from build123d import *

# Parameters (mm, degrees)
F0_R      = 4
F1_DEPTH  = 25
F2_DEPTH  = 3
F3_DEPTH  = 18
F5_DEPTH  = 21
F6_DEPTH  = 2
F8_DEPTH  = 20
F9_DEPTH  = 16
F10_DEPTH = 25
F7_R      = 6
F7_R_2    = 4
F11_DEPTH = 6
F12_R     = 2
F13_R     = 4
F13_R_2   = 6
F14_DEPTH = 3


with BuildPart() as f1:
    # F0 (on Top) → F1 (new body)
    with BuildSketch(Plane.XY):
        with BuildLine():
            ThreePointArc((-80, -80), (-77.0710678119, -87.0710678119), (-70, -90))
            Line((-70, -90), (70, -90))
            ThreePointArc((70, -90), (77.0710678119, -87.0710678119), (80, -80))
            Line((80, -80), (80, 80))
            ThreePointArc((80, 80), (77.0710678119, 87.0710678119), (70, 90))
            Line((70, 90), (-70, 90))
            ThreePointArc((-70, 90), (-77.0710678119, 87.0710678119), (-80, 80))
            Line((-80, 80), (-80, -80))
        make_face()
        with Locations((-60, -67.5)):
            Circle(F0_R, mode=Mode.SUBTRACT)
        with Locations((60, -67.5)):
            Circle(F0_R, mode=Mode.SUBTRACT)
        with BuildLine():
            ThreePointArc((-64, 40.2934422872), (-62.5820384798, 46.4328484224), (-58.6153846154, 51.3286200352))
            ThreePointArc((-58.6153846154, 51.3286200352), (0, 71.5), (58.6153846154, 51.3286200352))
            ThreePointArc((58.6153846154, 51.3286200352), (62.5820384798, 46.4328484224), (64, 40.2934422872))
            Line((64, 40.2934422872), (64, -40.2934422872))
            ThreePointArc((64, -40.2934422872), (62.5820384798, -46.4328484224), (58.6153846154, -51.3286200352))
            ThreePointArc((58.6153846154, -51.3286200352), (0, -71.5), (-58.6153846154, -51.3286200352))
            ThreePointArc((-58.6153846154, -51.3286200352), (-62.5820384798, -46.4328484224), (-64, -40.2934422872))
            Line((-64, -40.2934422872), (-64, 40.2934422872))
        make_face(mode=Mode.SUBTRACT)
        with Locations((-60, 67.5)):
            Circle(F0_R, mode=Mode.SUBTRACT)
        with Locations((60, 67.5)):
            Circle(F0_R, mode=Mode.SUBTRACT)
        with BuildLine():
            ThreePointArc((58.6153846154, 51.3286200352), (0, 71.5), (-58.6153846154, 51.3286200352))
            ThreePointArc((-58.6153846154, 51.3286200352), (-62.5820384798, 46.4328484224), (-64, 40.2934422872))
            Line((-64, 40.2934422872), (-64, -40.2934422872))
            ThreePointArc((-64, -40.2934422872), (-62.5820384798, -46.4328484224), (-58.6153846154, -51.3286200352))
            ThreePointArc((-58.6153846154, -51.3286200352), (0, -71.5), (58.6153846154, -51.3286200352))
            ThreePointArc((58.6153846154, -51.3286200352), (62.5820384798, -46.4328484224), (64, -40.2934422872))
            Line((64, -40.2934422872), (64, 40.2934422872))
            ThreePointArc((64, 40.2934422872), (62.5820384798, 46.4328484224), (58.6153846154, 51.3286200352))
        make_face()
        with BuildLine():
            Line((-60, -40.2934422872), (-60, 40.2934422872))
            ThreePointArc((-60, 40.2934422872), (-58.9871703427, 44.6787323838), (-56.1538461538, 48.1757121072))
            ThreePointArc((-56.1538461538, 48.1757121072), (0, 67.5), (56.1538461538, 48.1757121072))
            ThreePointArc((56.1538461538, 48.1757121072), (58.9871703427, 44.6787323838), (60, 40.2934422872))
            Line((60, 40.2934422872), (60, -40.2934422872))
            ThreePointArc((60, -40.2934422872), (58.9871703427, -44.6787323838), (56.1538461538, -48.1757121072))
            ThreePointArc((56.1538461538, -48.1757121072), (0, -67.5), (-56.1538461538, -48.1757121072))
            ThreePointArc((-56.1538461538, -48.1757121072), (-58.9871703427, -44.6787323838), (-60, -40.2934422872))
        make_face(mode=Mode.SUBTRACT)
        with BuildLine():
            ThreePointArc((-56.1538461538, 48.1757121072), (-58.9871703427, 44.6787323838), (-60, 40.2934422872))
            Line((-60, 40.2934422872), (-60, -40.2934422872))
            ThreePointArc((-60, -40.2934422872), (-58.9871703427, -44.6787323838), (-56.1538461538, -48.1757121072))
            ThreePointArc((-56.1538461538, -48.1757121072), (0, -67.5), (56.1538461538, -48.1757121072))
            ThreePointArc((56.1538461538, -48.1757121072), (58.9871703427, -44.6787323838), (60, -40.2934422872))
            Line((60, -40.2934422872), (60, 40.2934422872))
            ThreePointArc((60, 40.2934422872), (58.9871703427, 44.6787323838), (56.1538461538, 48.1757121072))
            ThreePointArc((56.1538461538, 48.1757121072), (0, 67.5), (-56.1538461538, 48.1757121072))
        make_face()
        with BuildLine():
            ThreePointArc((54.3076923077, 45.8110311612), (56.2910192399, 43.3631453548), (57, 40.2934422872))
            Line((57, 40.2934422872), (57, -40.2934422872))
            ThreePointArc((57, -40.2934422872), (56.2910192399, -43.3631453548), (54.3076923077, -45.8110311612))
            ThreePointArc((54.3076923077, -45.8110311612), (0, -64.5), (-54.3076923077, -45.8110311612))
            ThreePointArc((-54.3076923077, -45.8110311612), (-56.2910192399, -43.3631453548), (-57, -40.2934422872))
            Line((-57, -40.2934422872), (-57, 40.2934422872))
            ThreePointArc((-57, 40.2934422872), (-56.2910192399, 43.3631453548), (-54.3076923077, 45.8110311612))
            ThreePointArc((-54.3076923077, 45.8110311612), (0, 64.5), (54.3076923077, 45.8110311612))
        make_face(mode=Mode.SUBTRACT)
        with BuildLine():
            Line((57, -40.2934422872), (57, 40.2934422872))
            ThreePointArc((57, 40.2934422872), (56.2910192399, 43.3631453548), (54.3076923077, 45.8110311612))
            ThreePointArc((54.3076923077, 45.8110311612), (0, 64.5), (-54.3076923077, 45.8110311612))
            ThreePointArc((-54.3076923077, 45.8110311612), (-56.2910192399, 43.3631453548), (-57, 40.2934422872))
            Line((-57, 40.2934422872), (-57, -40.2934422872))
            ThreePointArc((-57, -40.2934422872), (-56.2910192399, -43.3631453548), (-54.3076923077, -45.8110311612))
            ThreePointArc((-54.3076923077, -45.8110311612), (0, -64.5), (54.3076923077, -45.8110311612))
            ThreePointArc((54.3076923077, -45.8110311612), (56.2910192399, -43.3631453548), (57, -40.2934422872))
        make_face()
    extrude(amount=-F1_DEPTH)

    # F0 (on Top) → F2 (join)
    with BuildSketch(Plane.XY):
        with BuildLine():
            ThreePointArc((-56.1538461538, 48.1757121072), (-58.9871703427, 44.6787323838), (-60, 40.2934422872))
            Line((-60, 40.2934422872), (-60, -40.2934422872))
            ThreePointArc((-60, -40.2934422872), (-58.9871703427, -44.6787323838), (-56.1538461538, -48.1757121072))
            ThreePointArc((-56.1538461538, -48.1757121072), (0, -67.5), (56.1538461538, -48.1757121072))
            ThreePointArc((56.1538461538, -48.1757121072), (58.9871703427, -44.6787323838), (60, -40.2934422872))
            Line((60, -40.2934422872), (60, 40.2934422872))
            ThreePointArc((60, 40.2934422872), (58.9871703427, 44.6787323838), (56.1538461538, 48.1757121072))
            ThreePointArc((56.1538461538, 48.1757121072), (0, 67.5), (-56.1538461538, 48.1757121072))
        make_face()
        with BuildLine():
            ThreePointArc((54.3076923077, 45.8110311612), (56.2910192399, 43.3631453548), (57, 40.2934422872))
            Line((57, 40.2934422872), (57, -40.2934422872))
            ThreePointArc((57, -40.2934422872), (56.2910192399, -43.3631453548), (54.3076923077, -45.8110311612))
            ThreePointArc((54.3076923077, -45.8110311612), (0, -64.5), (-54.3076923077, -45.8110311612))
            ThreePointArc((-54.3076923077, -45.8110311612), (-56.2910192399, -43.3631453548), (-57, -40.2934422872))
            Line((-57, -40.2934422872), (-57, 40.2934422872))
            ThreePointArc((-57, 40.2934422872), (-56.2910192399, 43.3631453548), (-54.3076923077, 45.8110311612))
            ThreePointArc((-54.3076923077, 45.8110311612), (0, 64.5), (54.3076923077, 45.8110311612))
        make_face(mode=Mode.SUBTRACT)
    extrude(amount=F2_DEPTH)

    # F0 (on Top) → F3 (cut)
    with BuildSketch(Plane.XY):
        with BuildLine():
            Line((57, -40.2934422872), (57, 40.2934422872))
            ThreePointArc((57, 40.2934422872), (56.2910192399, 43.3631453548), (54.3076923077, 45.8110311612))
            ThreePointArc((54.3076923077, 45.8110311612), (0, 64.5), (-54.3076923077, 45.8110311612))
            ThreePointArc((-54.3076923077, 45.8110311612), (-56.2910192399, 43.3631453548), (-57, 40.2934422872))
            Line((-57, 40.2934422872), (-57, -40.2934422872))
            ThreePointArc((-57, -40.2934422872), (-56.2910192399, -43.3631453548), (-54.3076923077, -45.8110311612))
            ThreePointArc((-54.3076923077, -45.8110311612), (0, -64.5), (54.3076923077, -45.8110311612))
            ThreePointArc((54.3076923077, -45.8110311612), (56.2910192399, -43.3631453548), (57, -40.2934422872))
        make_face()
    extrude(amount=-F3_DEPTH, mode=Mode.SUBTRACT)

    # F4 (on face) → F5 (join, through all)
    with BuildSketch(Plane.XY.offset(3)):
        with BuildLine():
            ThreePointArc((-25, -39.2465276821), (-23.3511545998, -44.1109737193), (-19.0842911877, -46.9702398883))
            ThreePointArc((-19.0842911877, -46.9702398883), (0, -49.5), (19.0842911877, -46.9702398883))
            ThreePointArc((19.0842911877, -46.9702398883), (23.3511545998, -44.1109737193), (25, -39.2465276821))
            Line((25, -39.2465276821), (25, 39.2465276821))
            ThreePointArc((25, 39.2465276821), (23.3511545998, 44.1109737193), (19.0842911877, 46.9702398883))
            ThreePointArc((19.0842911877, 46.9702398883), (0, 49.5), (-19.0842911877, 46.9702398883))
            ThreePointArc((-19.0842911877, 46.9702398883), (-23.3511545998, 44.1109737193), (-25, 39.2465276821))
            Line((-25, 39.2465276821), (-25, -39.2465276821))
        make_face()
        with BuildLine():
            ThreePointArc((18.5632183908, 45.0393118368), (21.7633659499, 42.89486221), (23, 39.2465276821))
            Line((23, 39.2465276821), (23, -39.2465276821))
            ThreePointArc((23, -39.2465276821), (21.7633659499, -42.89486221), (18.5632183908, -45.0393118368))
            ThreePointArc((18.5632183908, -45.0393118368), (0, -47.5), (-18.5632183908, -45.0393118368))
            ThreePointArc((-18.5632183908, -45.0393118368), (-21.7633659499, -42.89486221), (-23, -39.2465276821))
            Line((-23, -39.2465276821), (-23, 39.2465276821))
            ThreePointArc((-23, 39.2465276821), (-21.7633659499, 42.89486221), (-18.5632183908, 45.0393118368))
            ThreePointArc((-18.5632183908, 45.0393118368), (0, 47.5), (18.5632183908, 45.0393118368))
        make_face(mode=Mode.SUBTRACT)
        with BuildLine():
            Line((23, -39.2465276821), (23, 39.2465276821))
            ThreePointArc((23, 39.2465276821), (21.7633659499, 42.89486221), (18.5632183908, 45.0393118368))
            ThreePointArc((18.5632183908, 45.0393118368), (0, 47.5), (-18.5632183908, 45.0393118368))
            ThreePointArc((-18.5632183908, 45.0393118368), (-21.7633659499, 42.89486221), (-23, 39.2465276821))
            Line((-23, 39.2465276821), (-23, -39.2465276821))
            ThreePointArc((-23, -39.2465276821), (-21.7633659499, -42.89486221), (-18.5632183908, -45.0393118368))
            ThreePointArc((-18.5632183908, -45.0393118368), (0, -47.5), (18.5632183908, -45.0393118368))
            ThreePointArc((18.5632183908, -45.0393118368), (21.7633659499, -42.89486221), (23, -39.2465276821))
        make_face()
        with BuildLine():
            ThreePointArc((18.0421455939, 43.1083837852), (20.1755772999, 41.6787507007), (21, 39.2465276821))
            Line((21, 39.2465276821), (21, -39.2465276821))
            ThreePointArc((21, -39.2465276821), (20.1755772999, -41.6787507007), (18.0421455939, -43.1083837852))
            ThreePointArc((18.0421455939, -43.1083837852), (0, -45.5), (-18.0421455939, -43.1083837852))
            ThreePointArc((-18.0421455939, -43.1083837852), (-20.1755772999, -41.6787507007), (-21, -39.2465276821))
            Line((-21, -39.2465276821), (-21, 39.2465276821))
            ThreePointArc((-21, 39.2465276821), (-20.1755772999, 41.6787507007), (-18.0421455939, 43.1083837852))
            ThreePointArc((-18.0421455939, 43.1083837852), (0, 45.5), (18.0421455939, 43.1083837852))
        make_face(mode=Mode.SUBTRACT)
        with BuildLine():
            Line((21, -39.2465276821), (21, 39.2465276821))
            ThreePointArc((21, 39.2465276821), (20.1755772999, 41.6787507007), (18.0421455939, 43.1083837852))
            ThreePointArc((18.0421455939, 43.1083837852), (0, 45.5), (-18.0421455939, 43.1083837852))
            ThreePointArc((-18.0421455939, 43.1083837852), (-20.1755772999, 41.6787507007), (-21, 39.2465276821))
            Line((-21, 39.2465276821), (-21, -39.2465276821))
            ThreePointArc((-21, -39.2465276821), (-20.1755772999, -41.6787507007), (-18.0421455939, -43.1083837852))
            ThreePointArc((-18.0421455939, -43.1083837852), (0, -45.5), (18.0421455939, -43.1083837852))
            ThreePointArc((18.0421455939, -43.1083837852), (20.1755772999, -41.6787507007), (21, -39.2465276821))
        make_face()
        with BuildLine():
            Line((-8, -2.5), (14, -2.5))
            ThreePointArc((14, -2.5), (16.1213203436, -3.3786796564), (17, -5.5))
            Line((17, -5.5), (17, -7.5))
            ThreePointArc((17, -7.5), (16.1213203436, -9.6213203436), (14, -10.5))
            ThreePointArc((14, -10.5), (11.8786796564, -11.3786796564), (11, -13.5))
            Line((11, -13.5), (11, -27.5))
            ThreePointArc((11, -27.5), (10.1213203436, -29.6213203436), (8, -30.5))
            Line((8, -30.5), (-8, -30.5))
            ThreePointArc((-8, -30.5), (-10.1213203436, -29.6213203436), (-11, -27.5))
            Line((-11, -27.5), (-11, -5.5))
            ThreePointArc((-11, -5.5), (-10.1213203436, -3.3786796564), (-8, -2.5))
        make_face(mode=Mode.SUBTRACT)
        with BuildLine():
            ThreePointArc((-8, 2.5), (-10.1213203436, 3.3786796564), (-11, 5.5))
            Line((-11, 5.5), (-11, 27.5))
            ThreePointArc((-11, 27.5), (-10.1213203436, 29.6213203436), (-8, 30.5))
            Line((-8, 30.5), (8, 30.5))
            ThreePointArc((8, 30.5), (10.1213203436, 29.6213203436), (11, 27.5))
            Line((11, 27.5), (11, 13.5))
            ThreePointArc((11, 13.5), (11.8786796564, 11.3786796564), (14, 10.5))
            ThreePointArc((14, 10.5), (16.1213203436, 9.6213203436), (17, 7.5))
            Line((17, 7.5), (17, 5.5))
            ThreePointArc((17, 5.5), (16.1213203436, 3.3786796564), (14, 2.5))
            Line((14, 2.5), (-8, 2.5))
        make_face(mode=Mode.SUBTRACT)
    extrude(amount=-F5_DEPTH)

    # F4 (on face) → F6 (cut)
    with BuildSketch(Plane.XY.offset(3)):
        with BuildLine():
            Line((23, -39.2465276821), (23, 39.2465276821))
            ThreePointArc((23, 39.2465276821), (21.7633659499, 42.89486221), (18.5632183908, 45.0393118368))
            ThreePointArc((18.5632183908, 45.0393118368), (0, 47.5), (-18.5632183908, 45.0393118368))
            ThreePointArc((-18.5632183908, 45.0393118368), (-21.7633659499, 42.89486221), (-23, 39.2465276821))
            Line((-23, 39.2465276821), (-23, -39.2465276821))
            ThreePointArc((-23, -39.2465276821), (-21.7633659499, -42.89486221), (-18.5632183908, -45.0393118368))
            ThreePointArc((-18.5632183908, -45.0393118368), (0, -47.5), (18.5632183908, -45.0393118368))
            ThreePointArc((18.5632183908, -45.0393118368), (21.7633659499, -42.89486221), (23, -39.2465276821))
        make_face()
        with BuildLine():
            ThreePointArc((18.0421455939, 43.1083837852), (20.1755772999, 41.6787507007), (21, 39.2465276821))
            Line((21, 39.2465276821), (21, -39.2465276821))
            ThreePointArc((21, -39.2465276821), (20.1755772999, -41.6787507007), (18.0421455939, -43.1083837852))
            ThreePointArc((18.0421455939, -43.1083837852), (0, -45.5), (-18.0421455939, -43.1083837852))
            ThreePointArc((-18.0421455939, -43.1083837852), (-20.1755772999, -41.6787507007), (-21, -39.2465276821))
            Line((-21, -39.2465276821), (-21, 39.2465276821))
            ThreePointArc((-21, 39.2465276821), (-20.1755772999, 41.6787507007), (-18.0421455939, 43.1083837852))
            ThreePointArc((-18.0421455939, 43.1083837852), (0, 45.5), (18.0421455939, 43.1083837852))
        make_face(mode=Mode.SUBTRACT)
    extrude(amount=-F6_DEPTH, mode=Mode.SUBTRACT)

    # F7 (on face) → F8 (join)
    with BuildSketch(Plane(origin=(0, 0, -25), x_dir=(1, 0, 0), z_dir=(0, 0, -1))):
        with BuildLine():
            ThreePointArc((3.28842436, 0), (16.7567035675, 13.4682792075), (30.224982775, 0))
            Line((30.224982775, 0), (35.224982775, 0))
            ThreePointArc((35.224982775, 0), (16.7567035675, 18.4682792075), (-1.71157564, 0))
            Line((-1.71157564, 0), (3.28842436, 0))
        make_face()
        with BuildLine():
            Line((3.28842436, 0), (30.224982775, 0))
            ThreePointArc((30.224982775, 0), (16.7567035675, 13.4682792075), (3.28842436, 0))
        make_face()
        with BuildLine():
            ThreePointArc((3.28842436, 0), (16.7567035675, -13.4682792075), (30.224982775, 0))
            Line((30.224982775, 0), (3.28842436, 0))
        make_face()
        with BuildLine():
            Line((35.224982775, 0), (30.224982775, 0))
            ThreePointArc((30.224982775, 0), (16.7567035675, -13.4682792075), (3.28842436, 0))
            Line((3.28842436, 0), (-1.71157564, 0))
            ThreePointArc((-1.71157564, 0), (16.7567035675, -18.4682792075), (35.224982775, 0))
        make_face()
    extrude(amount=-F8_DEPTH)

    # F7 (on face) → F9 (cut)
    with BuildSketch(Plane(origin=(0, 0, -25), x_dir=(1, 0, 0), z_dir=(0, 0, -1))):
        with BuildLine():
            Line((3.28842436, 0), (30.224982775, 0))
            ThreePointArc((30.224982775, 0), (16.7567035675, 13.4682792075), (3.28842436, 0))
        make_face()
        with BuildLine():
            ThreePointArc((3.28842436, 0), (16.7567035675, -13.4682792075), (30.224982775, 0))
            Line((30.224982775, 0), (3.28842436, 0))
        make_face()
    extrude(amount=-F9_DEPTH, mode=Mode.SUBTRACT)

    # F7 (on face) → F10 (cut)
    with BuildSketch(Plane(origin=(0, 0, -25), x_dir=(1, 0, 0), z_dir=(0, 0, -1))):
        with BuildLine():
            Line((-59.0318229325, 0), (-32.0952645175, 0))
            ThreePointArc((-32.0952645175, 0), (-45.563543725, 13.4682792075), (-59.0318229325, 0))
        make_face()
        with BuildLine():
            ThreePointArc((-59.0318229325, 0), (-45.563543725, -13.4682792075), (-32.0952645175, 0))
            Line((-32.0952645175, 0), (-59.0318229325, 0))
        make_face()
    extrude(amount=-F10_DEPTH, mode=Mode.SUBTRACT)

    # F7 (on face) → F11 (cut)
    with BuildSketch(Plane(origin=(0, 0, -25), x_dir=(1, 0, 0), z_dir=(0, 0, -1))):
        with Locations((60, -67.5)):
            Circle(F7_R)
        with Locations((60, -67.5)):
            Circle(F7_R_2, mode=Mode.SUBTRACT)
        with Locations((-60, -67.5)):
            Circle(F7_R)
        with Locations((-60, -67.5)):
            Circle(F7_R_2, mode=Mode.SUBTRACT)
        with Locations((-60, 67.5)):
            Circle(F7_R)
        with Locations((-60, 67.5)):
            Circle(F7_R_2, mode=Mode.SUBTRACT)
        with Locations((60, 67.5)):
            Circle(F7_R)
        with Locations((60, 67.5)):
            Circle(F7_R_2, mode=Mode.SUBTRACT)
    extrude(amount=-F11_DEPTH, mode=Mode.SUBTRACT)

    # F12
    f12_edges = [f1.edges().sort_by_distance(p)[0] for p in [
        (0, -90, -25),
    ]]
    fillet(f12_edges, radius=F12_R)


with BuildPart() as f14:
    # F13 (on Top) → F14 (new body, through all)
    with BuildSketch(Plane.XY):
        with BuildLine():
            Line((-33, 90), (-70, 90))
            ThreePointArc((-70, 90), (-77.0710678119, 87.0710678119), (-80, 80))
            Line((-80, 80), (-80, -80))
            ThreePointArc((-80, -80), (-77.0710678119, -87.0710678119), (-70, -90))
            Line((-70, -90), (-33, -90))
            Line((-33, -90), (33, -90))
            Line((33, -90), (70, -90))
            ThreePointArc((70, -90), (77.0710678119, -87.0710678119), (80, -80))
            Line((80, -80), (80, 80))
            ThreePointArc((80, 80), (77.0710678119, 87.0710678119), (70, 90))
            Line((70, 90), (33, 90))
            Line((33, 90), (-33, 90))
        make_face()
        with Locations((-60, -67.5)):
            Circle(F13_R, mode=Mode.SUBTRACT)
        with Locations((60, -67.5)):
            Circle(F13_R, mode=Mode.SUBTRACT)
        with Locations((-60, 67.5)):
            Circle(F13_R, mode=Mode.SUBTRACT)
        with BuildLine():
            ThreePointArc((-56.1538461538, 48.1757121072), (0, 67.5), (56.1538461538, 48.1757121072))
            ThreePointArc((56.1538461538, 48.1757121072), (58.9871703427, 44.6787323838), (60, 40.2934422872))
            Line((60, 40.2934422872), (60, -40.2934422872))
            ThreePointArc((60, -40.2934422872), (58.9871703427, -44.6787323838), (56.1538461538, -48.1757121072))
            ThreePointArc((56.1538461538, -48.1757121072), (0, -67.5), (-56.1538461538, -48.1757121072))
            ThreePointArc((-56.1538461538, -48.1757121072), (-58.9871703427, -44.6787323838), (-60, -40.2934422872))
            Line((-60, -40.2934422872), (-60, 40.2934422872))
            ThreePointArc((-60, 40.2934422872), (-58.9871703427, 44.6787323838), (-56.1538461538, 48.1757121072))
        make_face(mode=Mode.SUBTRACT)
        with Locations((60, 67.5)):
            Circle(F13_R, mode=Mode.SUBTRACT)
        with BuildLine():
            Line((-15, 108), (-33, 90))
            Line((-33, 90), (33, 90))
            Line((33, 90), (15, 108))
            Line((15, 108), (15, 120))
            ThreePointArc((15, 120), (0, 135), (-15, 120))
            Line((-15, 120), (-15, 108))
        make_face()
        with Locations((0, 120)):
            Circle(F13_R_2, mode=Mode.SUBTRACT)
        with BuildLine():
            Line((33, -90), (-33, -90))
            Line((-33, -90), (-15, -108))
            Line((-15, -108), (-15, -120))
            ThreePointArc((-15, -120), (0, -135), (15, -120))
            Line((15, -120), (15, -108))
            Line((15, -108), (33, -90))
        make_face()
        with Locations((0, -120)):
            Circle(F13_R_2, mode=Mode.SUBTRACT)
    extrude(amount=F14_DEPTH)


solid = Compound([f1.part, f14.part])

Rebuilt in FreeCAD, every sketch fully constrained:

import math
import FreeCAD as App
import Part
import Sketcher

V = App.Vector


def edges_at(feature, points):
    """Names of the edges that pass closest to the given points."""
    edges = feature.Shape.Edges
    near = lambda p: min(range(len(edges)), key=lambda i: edges[i].distToShape(Part.Vertex(*p))[0])
    return sorted({f"Edge{near(p) + 1}" for p in points})

doc = App.newDocument("Part")
body = doc.addObject("PartDesign::Body", "Body")

# Sketch on XY plane
sketch1 = body.newObject("Sketcher::SketchObject", "Sketch")
sketch1.AttachmentSupport = (doc.getObject("XY_Plane"), [""])
sketch1.MapMode = "FlatFace"
sketch1.addGeometry([
    Part.ArcOfCircle(Part.Circle(V(-70, -80, 0), V(0, 0, 1), 10), math.radians(180), math.radians(270)),  # 0
    Part.LineSegment(V(-70, -90, 0), V(70, -90, 0)),  # 1
    Part.ArcOfCircle(Part.Circle(V(70, -80, 0), V(0, 0, 1), 10), math.radians(-90), math.radians(0)),  # 2
    Part.LineSegment(V(80, -80, 0), V(80, 80, 0)),  # 3
    Part.ArcOfCircle(Part.Circle(V(70, 80, 0), V(0, 0, 1), 10), math.radians(0), math.radians(90)),  # 4
    Part.LineSegment(V(70, 90, 0), V(-70, 90, 0)),  # 5
    Part.ArcOfCircle(Part.Circle(V(-70, 80, 0), V(0, 0, 1), 10), math.radians(90), math.radians(180)),  # 6
    Part.LineSegment(V(-80, 80, 0), V(-80, -80, 0)),  # 7
    Part.Circle(V(-60, -67.5, 0), V(0, 0, 1), 4),  # 8
    Part.Circle(V(60, -67.5, 0), V(0, 0, 1), 4),  # 9
    Part.Circle(V(-60, 67.5, 0), V(0, 0, 1), 4),  # 10
    Part.Circle(V(60, 67.5, 0), V(0, 0, 1), 4),  # 11
], False)
sketch1.addConstraint([
    Sketcher.Constraint("Tangent", 0, 2, 1, 1),
    Sketcher.Constraint("Tangent", 1, 2, 2, 1),
    Sketcher.Constraint("Tangent", 2, 2, 3, 1),
    Sketcher.Constraint("Tangent", 3, 2, 4, 1),
    Sketcher.Constraint("Tangent", 4, 2, 5, 1),
    Sketcher.Constraint("Tangent", 5, 2, 6, 1),
    Sketcher.Constraint("Tangent", 6, 2, 7, 1),
    Sketcher.Constraint("Tangent", 7, 2, 0, 1),
    Sketcher.Constraint("Horizontal", 1),
    Sketcher.Constraint("Vertical", 3),
    Sketcher.Constraint("Horizontal", 5),
    Sketcher.Constraint("Vertical", 7),
    Sketcher.Constraint("Equal", 0, 2),
    Sketcher.Constraint("Equal", 2, 4),
    Sketcher.Constraint("Equal", 4, 6),
    Sketcher.Constraint("Equal", 8, 9),
    Sketcher.Constraint("Equal", 9, 10),
    Sketcher.Constraint("Equal", 10, 11),
    Sketcher.Constraint("Symmetric", 0, 3, 4, 3, -1, 1),
    Sketcher.Constraint("Symmetric", 9, 3, 10, 3, -1, 1),
    Sketcher.Constraint("Symmetric", 8, 3, 11, 3, -1, 1),
    Sketcher.Constraint("Symmetric", 8, 3, 9, 3, -2),
    Sketcher.Constraint("Diameter", 8, 8.0),
    Sketcher.Constraint("Radius", 0, 10.0),
    Sketcher.Constraint("DistanceX", 1, 1, 1, 2, 140.0),
    Sketcher.Constraint("DistanceY", 3, 1, 3, 2, 160.0),
    Sketcher.Constraint("DistanceX", 8, 3, -1, 1, 60.0),
    Sketcher.Constraint("DistanceY", 8, 3, 10, 3, 135.0),
])
pad1 = body.newObject("PartDesign::Pad", "Pad")
pad1.Profile = sketch1
pad1.Length = 25
pad1.Reversed = True

# Sketch on XY plane
sketch2 = body.newObject("Sketcher::SketchObject", "Sketch001")
sketch2.AttachmentSupport = (doc.getObject("XY_Plane"), [""])
sketch2.MapMode = "FlatFace"
sketch2.addGeometry([
    Part.ArcOfCircle(Part.Circle(V(-50, 40, 0), V(0, 0, 1), 10), math.radians(128), math.radians(180)),  # 0
    Part.LineSegment(V(-60, 40, 0), V(-60, -40, 0)),  # 1
    Part.ArcOfCircle(Part.Circle(V(-50, -40, 0), V(0, 0, 1), 10), math.radians(180), math.radians(232)),  # 2
    Part.ArcOfCircle(Part.Circle(V(0, 24, 0), V(0, 0, 1), 91), math.radians(-128), math.radians(-52)),  # 3
    Part.ArcOfCircle(Part.Circle(V(50, -40, 0), V(0, 0, 1), 10), math.radians(-52), math.radians(0)),  # 4
    Part.LineSegment(V(60, -40, 0), V(60, 40, 0)),  # 5
    Part.ArcOfCircle(Part.Circle(V(50, 40, 0), V(0, 0, 1), 10), math.radians(0), math.radians(52)),  # 6
    Part.ArcOfCircle(Part.Circle(V(0, -24, 0), V(0, 0, 1), 91), math.radians(52), math.radians(128)),  # 7
    Part.ArcOfCircle(Part.Circle(V(0, -24, 0), V(0, 0, 1), 88), math.radians(52), math.radians(128)),  # 8
    Part.ArcOfCircle(Part.Circle(V(50, 40, 0), V(0, 0, 1), 7), math.radians(0), math.radians(52)),  # 9
    Part.LineSegment(V(57, 40, 0), V(57, -40, 0)),  # 10
    Part.ArcOfCircle(Part.Circle(V(50, -40, 0), V(0, 0, 1), 7), math.radians(-52), math.radians(0)),  # 11
    Part.ArcOfCircle(Part.Circle(V(0, 24, 0), V(0, 0, 1), 88), math.radians(-128), math.radians(-52)),  # 12
    Part.ArcOfCircle(Part.Circle(V(-50, -40, 0), V(0, 0, 1), 7), math.radians(180), math.radians(232)),  # 13
    Part.LineSegment(V(-57, -40, 0), V(-57, 40, 0)),  # 14
    Part.ArcOfCircle(Part.Circle(V(-50, 40, 0), V(0, 0, 1), 7), math.radians(128), math.radians(180)),  # 15
], False)
sketch2.addConstraint([
    Sketcher.Constraint("Tangent", 0, 2, 1, 1),
    Sketcher.Constraint("Tangent", 1, 2, 2, 1),
    Sketcher.Constraint("Tangent", 2, 2, 3, 1),
    Sketcher.Constraint("Tangent", 3, 2, 4, 1),
    Sketcher.Constraint("Tangent", 4, 2, 5, 1),
    Sketcher.Constraint("Tangent", 5, 2, 6, 1),
    Sketcher.Constraint("Tangent", 6, 2, 7, 1),
    Sketcher.Constraint("Tangent", 7, 2, 0, 1),
    Sketcher.Constraint("Tangent", 8, 1, 9, 2),
    Sketcher.Constraint("Tangent", 9, 1, 10, 1),
    Sketcher.Constraint("Tangent", 10, 2, 11, 2),
    Sketcher.Constraint("Tangent", 11, 1, 12, 2),
    Sketcher.Constraint("Tangent", 12, 1, 13, 2),
    Sketcher.Constraint("Tangent", 13, 1, 14, 1),
    Sketcher.Constraint("Tangent", 14, 2, 15, 2),
    Sketcher.Constraint("Tangent", 15, 1, 8, 2),
    Sketcher.Constraint("Vertical", 1),
    Sketcher.Constraint("Vertical", 5),
    Sketcher.Constraint("Vertical", 10),
    Sketcher.Constraint("Vertical", 14),
    Sketcher.Constraint("Coincident", 8, 3, 7, 3),
    Sketcher.Constraint("Coincident", 9, 3, 6, 3),
    Sketcher.Constraint("Coincident", 11, 3, 4, 3),
    Sketcher.Constraint("Coincident", 12, 3, 3, 3),
    Sketcher.Constraint("Coincident", 13, 3, 2, 3),
    Sketcher.Constraint("Equal", 0, 2),
    Sketcher.Constraint("Equal", 2, 4),
    Sketcher.Constraint("Equal", 4, 6),
    Sketcher.Constraint("Equal", 3, 7),
    Sketcher.Constraint("Equal", 13, 15),
    Sketcher.Constraint("Symmetric", 0, 3, 4, 3, -1, 1),
    Sketcher.Constraint("Symmetric", 3, 3, 7, 3, -1),
    Sketcher.Constraint("Radius", 0, 10.0),
    Sketcher.Constraint("Radius", 9, 7.0),
    Sketcher.Constraint("Radius", 3, 91.25),
    Sketcher.Constraint("DistanceX", 0, 3, -1, 1, 50.0),
    Sketcher.Constraint("DistanceY", 7, 3, 3, 3, 47.5),
])
pad2 = body.newObject("PartDesign::Pad", "Pad001")
pad2.Profile = sketch2
pad2.Length = 3

# Sketch on XY plane
sketch3 = body.newObject("Sketcher::SketchObject", "Sketch002")
sketch3.AttachmentSupport = (doc.getObject("XY_Plane"), [""])
sketch3.MapMode = "FlatFace"
sketch3.addGeometry([
    Part.LineSegment(V(57, -40, 0), V(57, 40, 0)),  # 0
    Part.ArcOfCircle(Part.Circle(V(50, 40, 0), V(0, 0, 1), 7), math.radians(0), math.radians(52)),  # 1
    Part.ArcOfCircle(Part.Circle(V(0, -24, 0), V(0, 0, 1), 88), math.radians(52), math.radians(128)),  # 2
    Part.ArcOfCircle(Part.Circle(V(-50, 40, 0), V(0, 0, 1), 7), math.radians(128), math.radians(180)),  # 3
    Part.LineSegment(V(-57, 40, 0), V(-57, -40, 0)),  # 4
    Part.ArcOfCircle(Part.Circle(V(-50, -40, 0), V(0, 0, 1), 7), math.radians(180), math.radians(232)),  # 5
    Part.ArcOfCircle(Part.Circle(V(0, 24, 0), V(0, 0, 1), 88), math.radians(-128), math.radians(-52)),  # 6
    Part.ArcOfCircle(Part.Circle(V(50, -40, 0), V(0, 0, 1), 7), math.radians(-52), math.radians(0)),  # 7
], False)
sketch3.addConstraint([
    Sketcher.Constraint("Tangent", 0, 2, 1, 1),
    Sketcher.Constraint("Tangent", 1, 2, 2, 1),
    Sketcher.Constraint("Tangent", 2, 2, 3, 1),
    Sketcher.Constraint("Tangent", 3, 2, 4, 1),
    Sketcher.Constraint("Tangent", 4, 2, 5, 1),
    Sketcher.Constraint("Tangent", 5, 2, 6, 1),
    Sketcher.Constraint("Tangent", 6, 2, 7, 1),
    Sketcher.Constraint("Tangent", 7, 2, 0, 1),
    Sketcher.Constraint("Vertical", 0),
    Sketcher.Constraint("Vertical", 4),
    Sketcher.Constraint("Equal", 1, 3),
    Sketcher.Constraint("Equal", 3, 5),
    Sketcher.Constraint("Equal", 2, 6),
    Sketcher.Constraint("Equal", 5, 7),
    Sketcher.Constraint("Symmetric", 1, 3, 5, 3, -1, 1),
    Sketcher.Constraint("Symmetric", 2, 3, 6, 3, -1),
    Sketcher.Constraint("Radius", 1, 7.0),
    Sketcher.Constraint("Radius", 2, 88.25),
    Sketcher.Constraint("DistanceX", -1, 1, 1, 3, 50.0),
    Sketcher.Constraint("DistanceY", 2, 3, 6, 3, 47.5),
])
pocket1 = body.newObject("PartDesign::Pocket", "Pocket")
pocket1.Profile = sketch3
pocket1.Length = 18

# Sketch on XY plane
sketch4 = body.newObject("Sketcher::SketchObject", "Sketch003")
sketch4.AttachmentSupport = (doc.getObject("XY_Plane"), [""])
sketch4.MapMode = "FlatFace"
sketch4.AttachmentOffset = App.Placement(V(0, 0, 3), App.Rotation())
sketch4.addGeometry([
    Part.ArcOfCircle(Part.Circle(V(-17, -39.2, 0), V(0, 0, 1), 8), math.radians(180), math.radians(255)),  # 0
    Part.ArcOfCircle(Part.Circle(V(0, 23.7, 0), V(0, 0, 1), 73.2), math.radians(-105), math.radians(-75)),  # 1
    Part.ArcOfCircle(Part.Circle(V(17, -39.2, 0), V(0, 0, 1), 8), math.radians(-75), math.radians(0)),  # 2
    Part.LineSegment(V(25, -39.2, 0), V(25, 39.2, 0)),  # 3
    Part.ArcOfCircle(Part.Circle(V(17, 39.2, 0), V(0, 0, 1), 8), math.radians(0), math.radians(75)),  # 4
    Part.ArcOfCircle(Part.Circle(V(0, -23.7, 0), V(0, 0, 1), 73.2), math.radians(75), math.radians(105)),  # 5
    Part.ArcOfCircle(Part.Circle(V(-17, 39.2, 0), V(0, 0, 1), 8), math.radians(105), math.radians(180)),  # 6
    Part.LineSegment(V(-25, 39.2, 0), V(-25, -39.2, 0)),  # 7
    Part.ArcOfCircle(Part.Circle(V(-8, -5.5, 0), V(0, 0, 1), 3), math.radians(90), math.radians(180)),  # 8
    Part.LineSegment(V(-8, -2.5, 0), V(14, -2.5, 0)),  # 9
    Part.ArcOfCircle(Part.Circle(V(14, -5.5, 0), V(0, 0, 1), 3), math.radians(0), math.radians(90)),  # 10
    Part.LineSegment(V(17, -5.5, 0), V(17, -7.5, 0)),  # 11
    Part.ArcOfCircle(Part.Circle(V(14, -7.5, 0), V(0, 0, 1), 3), math.radians(-90), math.radians(0)),  # 12
    Part.ArcOfCircle(Part.Circle(V(14, -13.5, 0), V(0, 0, 1), 3), math.radians(90), math.radians(180)),  # 13
    Part.LineSegment(V(11, -13.5, 0), V(11, -27.5, 0)),  # 14
    Part.ArcOfCircle(Part.Circle(V(8, -27.5, 0), V(0, 0, 1), 3), math.radians(-90), math.radians(0)),  # 15
    Part.LineSegment(V(8, -30.5, 0), V(-8, -30.5, 0)),  # 16
    Part.ArcOfCircle(Part.Circle(V(-8, -27.5, 0), V(0, 0, 1), 3), math.radians(180), math.radians(270)),  # 17
    Part.LineSegment(V(-11, -27.5, 0), V(-11, -5.5, 0)),  # 18
    Part.LineSegment(V(14, 2.5, 0), V(-8, 2.5, 0)),  # 19
    Part.ArcOfCircle(Part.Circle(V(-8, 5.5, 0), V(0, 0, 1), 3), math.radians(180), math.radians(270)),  # 20
    Part.LineSegment(V(-11, 5.5, 0), V(-11, 27.5, 0)),  # 21
    Part.ArcOfCircle(Part.Circle(V(-8, 27.5, 0), V(0, 0, 1), 3), math.radians(90), math.radians(180)),  # 22
    Part.LineSegment(V(-8, 30.5, 0), V(8, 30.5, 0)),  # 23
    Part.ArcOfCircle(Part.Circle(V(8, 27.5, 0), V(0, 0, 1), 3), math.radians(0), math.radians(90)),  # 24
    Part.LineSegment(V(11, 27.5, 0), V(11, 13.5, 0)),  # 25
    Part.ArcOfCircle(Part.Circle(V(14, 13.5, 0), V(0, 0, 1), 3), math.radians(180), math.radians(270)),  # 26
    Part.ArcOfCircle(Part.Circle(V(14, 7.5, 0), V(0, 0, 1), 3), math.radians(0), math.radians(90)),  # 27
    Part.LineSegment(V(17, 7.5, 0), V(17, 5.5, 0)),  # 28
    Part.ArcOfCircle(Part.Circle(V(14, 5.5, 0), V(0, 0, 1), 3), math.radians(-90), math.radians(0)),  # 29
], False)
sketch4.addConstraint([
    Sketcher.Constraint("Tangent", 0, 2, 1, 1),
    Sketcher.Constraint("Tangent", 1, 2, 2, 1),
    Sketcher.Constraint("Tangent", 2, 2, 3, 1),
    Sketcher.Constraint("Tangent", 3, 2, 4, 1),
    Sketcher.Constraint("Tangent", 4, 2, 5, 1),
    Sketcher.Constraint("Tangent", 5, 2, 6, 1),
    Sketcher.Constraint("Tangent", 6, 2, 7, 1),
    Sketcher.Constraint("Tangent", 7, 2, 0, 1),
    Sketcher.Constraint("Tangent", 8, 1, 9, 1),
    Sketcher.Constraint("Tangent", 9, 2, 10, 2),
    Sketcher.Constraint("Tangent", 10, 1, 11, 1),
    Sketcher.Constraint("Tangent", 11, 2, 12, 2),
    Sketcher.Constraint("Tangent", 12, 1, 13, 1),
    Sketcher.Constraint("Tangent", 13, 2, 14, 1),
    Sketcher.Constraint("Tangent", 14, 2, 15, 2),
    Sketcher.Constraint("Tangent", 15, 1, 16, 1),
    Sketcher.Constraint("Tangent", 16, 2, 17, 2),
    Sketcher.Constraint("Tangent", 17, 1, 18, 1),
    Sketcher.Constraint("Tangent", 18, 2, 8, 2),
    Sketcher.Constraint("Tangent", 19, 2, 20, 2),
    Sketcher.Constraint("Tangent", 20, 1, 21, 1),
    Sketcher.Constraint("Tangent", 21, 2, 22, 2),
    Sketcher.Constraint("Tangent", 22, 1, 23, 1),
    Sketcher.Constraint("Tangent", 23, 2, 24, 2),
    Sketcher.Constraint("Tangent", 24, 1, 25, 1),
    Sketcher.Constraint("Tangent", 25, 2, 26, 1),
    Sketcher.Constraint("Tangent", 26, 2, 27, 2),
    Sketcher.Constraint("Tangent", 27, 1, 28, 1),
    Sketcher.Constraint("Tangent", 28, 2, 29, 2),
    Sketcher.Constraint("Tangent", 29, 1, 19, 1),
    Sketcher.Constraint("Vertical", 3),
    Sketcher.Constraint("Vertical", 7),
    Sketcher.Constraint("Horizontal", 9),
    Sketcher.Constraint("Vertical", 11),
    Sketcher.Constraint("Vertical", 14),
    Sketcher.Constraint("Horizontal", 16),
    Sketcher.Constraint("Vertical", 18),
    Sketcher.Constraint("Horizontal", 19),
    Sketcher.Constraint("Vertical", 21),
    Sketcher.Constraint("Horizontal", 23),
    Sketcher.Constraint("Vertical", 25),
    Sketcher.Constraint("Vertical", 28),
    Sketcher.Constraint("Equal", 0, 2),
    Sketcher.Constraint("Equal", 2, 4),
    Sketcher.Constraint("Equal", 1, 5),
    Sketcher.Constraint("Equal", 4, 6),
    Sketcher.Constraint("Equal", 8, 10),
    Sketcher.Constraint("Equal", 10, 12),
    Sketcher.Constraint("Equal", 12, 13),
    Sketcher.Constraint("Equal", 13, 15),
    Sketcher.Constraint("Equal", 15, 17),
    Sketcher.Constraint("Equal", 17, 20),
    Sketcher.Constraint("Equal", 20, 22),
    Sketcher.Constraint("Equal", 22, 24),
    Sketcher.Constraint("Equal", 24, 26),
    Sketcher.Constraint("Equal", 26, 27),
    Sketcher.Constraint("Equal", 27, 29),
    Sketcher.Constraint("Symmetric", 0, 3, 4, 3, -1, 1),
    Sketcher.Constraint("Symmetric", 15, 3, 22, 3, -1, 1),
    Sketcher.Constraint("Symmetric", 1, 3, 5, 3, -1),
    Sketcher.Constraint("Symmetric", 8, 3, 20, 3, -1),
    Sketcher.Constraint("Symmetric", 13, 3, 26, 3, -1),
    Sketcher.Constraint("Vertical", 12, 3, 13, 3),
    Sketcher.Constraint("Vertical", 26, 3, 27, 3),
    Sketcher.Constraint("Vertical", 4, 3, 10, 1),
    Sketcher.Constraint("Equal", 19, 18),
    Sketcher.Constraint("Radius", 0, 8.0),
    Sketcher.Constraint("Radius", 8, 3.0),
    Sketcher.Constraint("DistanceX", 9, 1, 9, 2, 22.0),
    Sketcher.Constraint("DistanceY", 11, 2, 11, 1, 2.0),
    Sketcher.Constraint("Radius", 1, 73.25),
    Sketcher.Constraint("DistanceY", 8, 3, 20, 3, 11.0),
    Sketcher.Constraint("DistanceY", 5, 3, 1, 3, 47.5),
])
pad3 = body.newObject("PartDesign::Pad", "Pad002")
pad3.Profile = sketch4
pad3.Type = "UpToLast"
pad3.Reversed = True

# Sketch on XY plane
sketch5 = body.newObject("Sketcher::SketchObject", "Sketch004")
sketch5.AttachmentSupport = (doc.getObject("XY_Plane"), [""])
sketch5.MapMode = "FlatFace"
sketch5.AttachmentOffset = App.Placement(V(0, 0, 3), App.Rotation())
sketch5.addGeometry([
    Part.LineSegment(V(23, -39.2, 0), V(23, 39.2, 0)),  # 0
    Part.ArcOfCircle(Part.Circle(V(17, 39.2, 0), V(0, 0, 1), 6), math.radians(0), math.radians(75)),  # 1
    Part.ArcOfCircle(Part.Circle(V(0, -23.8, 0), V(0, 0, 1), 71.3), math.radians(75), math.radians(105)),  # 2
    Part.ArcOfCircle(Part.Circle(V(-17, 39.2, 0), V(0, 0, 1), 6), math.radians(105), math.radians(180)),  # 3
    Part.LineSegment(V(-23, 39.2, 0), V(-23, -39.2, 0)),  # 4
    Part.ArcOfCircle(Part.Circle(V(-17, -39.2, 0), V(0, 0, 1), 6), math.radians(180), math.radians(255)),  # 5
    Part.ArcOfCircle(Part.Circle(V(0, 23.8, 0), V(0, 0, 1), 71.3), math.radians(-105), math.radians(-75)),  # 6
    Part.ArcOfCircle(Part.Circle(V(17, -39.2, 0), V(0, 0, 1), 6), math.radians(-75), math.radians(0)),  # 7
    Part.ArcOfCircle(Part.Circle(V(0, -23.8, 0), V(0, 0, 1), 69.2), math.radians(75), math.radians(105)),  # 8
    Part.ArcOfCircle(Part.Circle(V(17, 39.2, 0), V(0, 0, 1), 4), math.radians(0), math.radians(75)),  # 9
    Part.LineSegment(V(21, 39.2, 0), V(21, -39.2, 0)),  # 10
    Part.ArcOfCircle(Part.Circle(V(17, -39.2, 0), V(0, 0, 1), 4), math.radians(-75), math.radians(0)),  # 11
    Part.ArcOfCircle(Part.Circle(V(0, 23.8, 0), V(0, 0, 1), 69.2), math.radians(-105), math.radians(-75)),  # 12
    Part.ArcOfCircle(Part.Circle(V(-17, -39.2, 0), V(0, 0, 1), 4), math.radians(180), math.radians(255)),  # 13
    Part.LineSegment(V(-21, -39.2, 0), V(-21, 39.2, 0)),  # 14
    Part.ArcOfCircle(Part.Circle(V(-17, 39.2, 0), V(0, 0, 1), 4), math.radians(105), math.radians(180)),  # 15
], False)
sketch5.addConstraint([
    Sketcher.Constraint("Tangent", 0, 2, 1, 1),
    Sketcher.Constraint("Tangent", 1, 2, 2, 1),
    Sketcher.Constraint("Tangent", 2, 2, 3, 1),
    Sketcher.Constraint("Tangent", 3, 2, 4, 1),
    Sketcher.Constraint("Tangent", 4, 2, 5, 1),
    Sketcher.Constraint("Tangent", 5, 2, 6, 1),
    Sketcher.Constraint("Tangent", 6, 2, 7, 1),
    Sketcher.Constraint("Tangent", 7, 2, 0, 1),
    Sketcher.Constraint("Tangent", 8, 1, 9, 2),
    Sketcher.Constraint("Tangent", 9, 1, 10, 1),
    Sketcher.Constraint("Tangent", 10, 2, 11, 2),
    Sketcher.Constraint("Tangent", 11, 1, 12, 2),
    Sketcher.Constraint("Tangent", 12, 1, 13, 2),
    Sketcher.Constraint("Tangent", 13, 1, 14, 1),
    Sketcher.Constraint("Tangent", 14, 2, 15, 2),
    Sketcher.Constraint("Tangent", 15, 1, 8, 2),
    Sketcher.Constraint("Vertical", 0),
    Sketcher.Constraint("Vertical", 4),
    Sketcher.Constraint("Vertical", 10),
    Sketcher.Constraint("Vertical", 14),
    Sketcher.Constraint("Coincident", 8, 3, 2, 3),
    Sketcher.Constraint("Coincident", 9, 3, 1, 3),
    Sketcher.Constraint("Coincident", 11, 3, 7, 3),
    Sketcher.Constraint("Coincident", 12, 3, 6, 3),
    Sketcher.Constraint("Coincident", 13, 3, 5, 3),
    Sketcher.Constraint("Equal", 1, 3),
    Sketcher.Constraint("Equal", 3, 5),
    Sketcher.Constraint("Equal", 2, 6),
    Sketcher.Constraint("Equal", 5, 7),
    Sketcher.Constraint("Equal", 13, 15),
    Sketcher.Constraint("Symmetric", 1, 3, 5, 3, -1, 1),
    Sketcher.Constraint("Symmetric", 2, 3, 6, 3, -1),
    Sketcher.Constraint("Radius", 1, 6.0),
    Sketcher.Constraint("Radius", 9, 4.0),
    Sketcher.Constraint("Radius", 2, 71.25),
    Sketcher.Constraint("DistanceX", -1, 1, 1, 3, 17.0),
    Sketcher.Constraint("DistanceY", 2, 3, 6, 3, 47.5),
])
pocket2 = body.newObject("PartDesign::Pocket", "Pocket001")
pocket2.Profile = sketch5
pocket2.Length = 2

# Sketch on XY plane
sketch6 = body.newObject("Sketcher::SketchObject", "Sketch005")
sketch6.AttachmentSupport = (doc.getObject("XY_Plane"), [""])
sketch6.MapMode = "FlatFace"
sketch6.AttachmentOffset = App.Placement(V(0, 0, -25), App.Rotation())
sketch6.addGeometry(Part.Circle(V(17, 0, 0), V(0, 0, 1), 18), False)
sketch6.addConstraint([
    Sketcher.Constraint("PointOnObject", 0, 3, -1),
    Sketcher.Constraint("Diameter", 0, 36.936558),
    Sketcher.Constraint("DistanceX", -1, 1, 0, 3, 16.756704),
])
pad4 = body.newObject("PartDesign::Pad", "Pad003")
pad4.Profile = sketch6
pad4.Length = 20

# Sketch on XY plane
sketch7 = body.newObject("Sketcher::SketchObject", "Sketch006")
sketch7.AttachmentSupport = (doc.getObject("XY_Plane"), [""])
sketch7.MapMode = "FlatFace"
sketch7.AttachmentOffset = App.Placement(V(0, 0, -25), App.Rotation())
sketch7.addGeometry(Part.Circle(V(17, 0, 0), V(0, 0, 1), 13), False)
sketch7.addConstraint([
    Sketcher.Constraint("PointOnObject", 0, 3, -1),
    Sketcher.Constraint("Diameter", 0, 26.936558),
    Sketcher.Constraint("DistanceX", -1, 1, 0, 3, 16.756704),
])
pocket3 = body.newObject("PartDesign::Pocket", "Pocket002")
pocket3.Profile = sketch7
pocket3.Length = 16
pocket3.Reversed = True

# Sketch on XY plane
sketch8 = body.newObject("Sketcher::SketchObject", "Sketch007")
sketch8.AttachmentSupport = (doc.getObject("XY_Plane"), [""])
sketch8.MapMode = "FlatFace"
sketch8.AttachmentOffset = App.Placement(V(0, 0, -25), App.Rotation())
sketch8.addGeometry(Part.Circle(V(-46, 0, 0), V(0, 0, 1), 13), False)
sketch8.addConstraint([
    Sketcher.Constraint("PointOnObject", 0, 3, -1),
    Sketcher.Constraint("Diameter", 0, 26.936558),
    Sketcher.Constraint("DistanceX", 0, 3, -1, 1, 45.563544),
])
pocket4 = body.newObject("PartDesign::Pocket", "Pocket003")
pocket4.Profile = sketch8
pocket4.Length = 25
pocket4.Reversed = True

# Sketch on XY plane
sketch9 = body.newObject("Sketcher::SketchObject", "Sketch008")
sketch9.AttachmentSupport = (doc.getObject("XY_Plane"), [""])
sketch9.MapMode = "FlatFace"
sketch9.AttachmentOffset = App.Placement(V(0, 0, -25), App.Rotation())
sketch9.addGeometry([
    Part.Circle(V(60, 67.5, 0), V(0, 0, 1), 6),  # 0
    Part.Circle(V(60, 67.5, 0), V(0, 0, 1), 4),  # 1
    Part.Circle(V(-60, 67.5, 0), V(0, 0, 1), 6),  # 2
    Part.Circle(V(-60, 67.5, 0), V(0, 0, 1), 4),  # 3
    Part.Circle(V(-60, -67.5, 0), V(0, 0, 1), 6),  # 4
    Part.Circle(V(-60, -67.5, 0), V(0, 0, 1), 4),  # 5
    Part.Circle(V(60, -67.5, 0), V(0, 0, 1), 6),  # 6
    Part.Circle(V(60, -67.5, 0), V(0, 0, 1), 4),  # 7
], False)
sketch9.addConstraint([
    Sketcher.Constraint("Coincident", 1, 3, 0, 3),
    Sketcher.Constraint("Coincident", 3, 3, 2, 3),
    Sketcher.Constraint("Coincident", 5, 3, 4, 3),
    Sketcher.Constraint("Coincident", 7, 3, 6, 3),
    Sketcher.Constraint("Equal", 0, 2),
    Sketcher.Constraint("Equal", 1, 3),
    Sketcher.Constraint("Equal", 2, 4),
    Sketcher.Constraint("Equal", 3, 5),
    Sketcher.Constraint("Equal", 4, 6),
    Sketcher.Constraint("Equal", 5, 7),
    Sketcher.Constraint("Symmetric", 0, 3, 4, 3, -1, 1),
    Sketcher.Constraint("Symmetric", 2, 3, 6, 3, -1, 1),
    Sketcher.Constraint("Symmetric", 0, 3, 2, 3, -2),
    Sketcher.Constraint("Diameter", 0, 12.0),
    Sketcher.Constraint("Diameter", 1, 8.0),
    Sketcher.Constraint("DistanceX", -1, 1, 0, 3, 60.0),
    Sketcher.Constraint("DistanceY", 4, 3, 2, 3, 135.0),
])
pocket5 = body.newObject("PartDesign::Pocket", "Pocket004")
pocket5.Profile = sketch9
pocket5.Length = 6
pocket5.Reversed = True
doc.recompute()

fillet = body.newObject("PartDesign::Fillet", "Fillet")
fillet.Base = (pocket5, edges_at(pocket5, [(0, -90, -25)]))
fillet.Radius = 2
body2 = doc.addObject("PartDesign::Body", "Body001")

# Sketch on XY plane
sketch10 = body2.newObject("Sketcher::SketchObject", "Sketch009")
sketch10.AttachmentSupport = (doc.getObject("XY_Plane001"), [""])
sketch10.MapMode = "FlatFace"
sketch10.addGeometry([
    Part.ArcOfCircle(Part.Circle(V(-70, 80, 0), V(0, 0, 1), 10), math.radians(90), math.radians(180)),  # 0
    Part.LineSegment(V(-80, 80, 0), V(-80, -80, 0)),  # 1
    Part.ArcOfCircle(Part.Circle(V(-70, -80, 0), V(0, 0, 1), 10), math.radians(180), math.radians(270)),  # 2
    Part.LineSegment(V(-70, -90, 0), V(-33, -90, 0)),  # 3
    Part.LineSegment(V(-33, -90, 0), V(-15, -108, 0)),  # 4
    Part.LineSegment(V(-15, -108, 0), V(-15, -120, 0)),  # 5
    Part.ArcOfCircle(Part.Circle(V(0, -120, 0), V(0, 0, 1), 15), math.radians(180), math.radians(360)),  # 6
    Part.LineSegment(V(15, -120, 0), V(15, -108, 0)),  # 7
    Part.LineSegment(V(15, -108, 0), V(33, -90, 0)),  # 8
    Part.LineSegment(V(33, -90, 0), V(70, -90, 0)),  # 9
    Part.ArcOfCircle(Part.Circle(V(70, -80, 0), V(0, 0, 1), 10), math.radians(-90), math.radians(0)),  # 10
    Part.LineSegment(V(80, -80, 0), V(80, 80, 0)),  # 11
    Part.ArcOfCircle(Part.Circle(V(70, 80, 0), V(0, 0, 1), 10), math.radians(0), math.radians(90)),  # 12
    Part.LineSegment(V(70, 90, 0), V(33, 90, 0)),  # 13
    Part.LineSegment(V(33, 90, 0), V(15, 108, 0)),  # 14
    Part.LineSegment(V(15, 108, 0), V(15, 120, 0)),  # 15
    Part.ArcOfCircle(Part.Circle(V(0, 120, 0), V(0, 0, 1), 15), math.radians(0), math.radians(180)),  # 16
    Part.LineSegment(V(-15, 120, 0), V(-15, 108, 0)),  # 17
    Part.LineSegment(V(-15, 108, 0), V(-33, 90, 0)),  # 18
    Part.LineSegment(V(-33, 90, 0), V(-70, 90, 0)),  # 19
    Part.Circle(V(-60, -67.5, 0), V(0, 0, 1), 4),  # 20
    Part.Circle(V(0, -120, 0), V(0, 0, 1), 6),  # 21
    Part.Circle(V(60, -67.5, 0), V(0, 0, 1), 4),  # 22
    Part.Circle(V(-60, 67.5, 0), V(0, 0, 1), 4),  # 23
    Part.ArcOfCircle(Part.Circle(V(-50, 40.3, 0), V(0, 0, 1), 10), math.radians(128), math.radians(180)),  # 24
    Part.ArcOfCircle(Part.Circle(V(0, -23.8, 0), V(0, 0, 1), 91.2), math.radians(52), math.radians(128)),  # 25
    Part.ArcOfCircle(Part.Circle(V(50, 40.3, 0), V(0, 0, 1), 10), math.radians(0), math.radians(52)),  # 26
    Part.LineSegment(V(60, 40.3, 0), V(60, -40.3, 0)),  # 27
    Part.ArcOfCircle(Part.Circle(V(50, -40.3, 0), V(0, 0, 1), 10), math.radians(-52), math.radians(0)),  # 28
    Part.ArcOfCircle(Part.Circle(V(0, 23.8, 0), V(0, 0, 1), 91.2), math.radians(-128), math.radians(-52)),  # 29
    Part.ArcOfCircle(Part.Circle(V(-50, -40.3, 0), V(0, 0, 1), 10), math.radians(180), math.radians(232)),  # 30
    Part.LineSegment(V(-60, -40.3, 0), V(-60, 40.3, 0)),  # 31
    Part.Circle(V(0, 120, 0), V(0, 0, 1), 6),  # 32
    Part.Circle(V(60, 67.5, 0), V(0, 0, 1), 4),  # 33
], False)
sketch10.addConstraint([
    Sketcher.Constraint("Tangent", 0, 2, 1, 1),
    Sketcher.Constraint("Tangent", 1, 2, 2, 1),
    Sketcher.Constraint("Tangent", 2, 2, 3, 1),
    Sketcher.Constraint("Coincident", 3, 2, 4, 1),
    Sketcher.Constraint("Coincident", 4, 2, 5, 1),
    Sketcher.Constraint("Tangent", 5, 2, 6, 1),
    Sketcher.Constraint("Tangent", 6, 2, 7, 1),
    Sketcher.Constraint("Coincident", 7, 2, 8, 1),
    Sketcher.Constraint("Coincident", 8, 2, 9, 1),
    Sketcher.Constraint("Tangent", 9, 2, 10, 1),
    Sketcher.Constraint("Tangent", 10, 2, 11, 1),
    Sketcher.Constraint("Tangent", 11, 2, 12, 1),
    Sketcher.Constraint("Tangent", 12, 2, 13, 1),
    Sketcher.Constraint("Coincident", 13, 2, 14, 1),
    Sketcher.Constraint("Coincident", 14, 2, 15, 1),
    Sketcher.Constraint("Tangent", 15, 2, 16, 1),
    Sketcher.Constraint("Tangent", 16, 2, 17, 1),
    Sketcher.Constraint("Coincident", 17, 2, 18, 1),
    Sketcher.Constraint("Coincident", 18, 2, 19, 1),
    Sketcher.Constraint("Tangent", 19, 2, 0, 1),
    Sketcher.Constraint("Tangent", 24, 1, 25, 2),
    Sketcher.Constraint("Tangent", 25, 1, 26, 2),
    Sketcher.Constraint("Tangent", 26, 1, 27, 1),
    Sketcher.Constraint("Tangent", 27, 2, 28, 2),
    Sketcher.Constraint("Tangent", 28, 1, 29, 2),
    Sketcher.Constraint("Tangent", 29, 1, 30, 2),
    Sketcher.Constraint("Tangent", 30, 1, 31, 1),
    Sketcher.Constraint("Tangent", 31, 2, 24, 2),
    Sketcher.Constraint("Vertical", 1),
    Sketcher.Constraint("Horizontal", 3),
    Sketcher.Constraint("Vertical", 5),
    Sketcher.Constraint("Vertical", 7),
    Sketcher.Constraint("Horizontal", 9),
    Sketcher.Constraint("Vertical", 11),
    Sketcher.Constraint("Horizontal", 13),
    Sketcher.Constraint("Vertical", 15),
    Sketcher.Constraint("Vertical", 17),
    Sketcher.Constraint("Horizontal", 19),
    Sketcher.Constraint("Vertical", 27),
    Sketcher.Constraint("Vertical", 31),
    Sketcher.Constraint("Coincident", 21, 3, 6, 3),
    Sketcher.Constraint("Coincident", 32, 3, 16, 3),
    Sketcher.Constraint("Equal", 0, 2),
    Sketcher.Constraint("Equal", 2, 10),
    Sketcher.Constraint("Equal", 10, 12),
    Sketcher.Constraint("Equal", 6, 16),
    Sketcher.Constraint("Equal", 20, 22),
    Sketcher.Constraint("Equal", 22, 23),
    Sketcher.Constraint("Equal", 12, 24),
    Sketcher.Constraint("Equal", 24, 26),
    Sketcher.Constraint("Equal", 26, 28),
    Sketcher.Constraint("Equal", 25, 29),
    Sketcher.Constraint("Equal", 28, 30),
    Sketcher.Constraint("Equal", 21, 32),
    Sketcher.Constraint("Equal", 23, 33),
    Sketcher.Constraint("Symmetric", 0, 3, 10, 3, -1, 1),
    Sketcher.Constraint("Symmetric", 6, 3, 16, 3, -1, 1),
    Sketcher.Constraint("Symmetric", 22, 3, 23, 3, -1, 1),
    Sketcher.Constraint("Symmetric", 24, 3, 28, 3, -1, 1),
    Sketcher.Constraint("Symmetric", 20, 3, 33, 3, -1, 1),
    Sketcher.Constraint("Symmetric", 3, 2, 13, 2, -1, 1),
    Sketcher.Constraint("Symmetric", 20, 3, 22, 3, -2),
    Sketcher.Constraint("Symmetric", 4, 2, 7, 2, -2),
    Sketcher.Constraint("Symmetric", 3, 2, 8, 2, -2),
    Sketcher.Constraint("Symmetric", 25, 3, 29, 3, -1),
    Sketcher.Constraint("Perpendicular", 4, 8),
    Sketcher.Constraint("Perpendicular", 8, 14),
    Sketcher.Constraint("Perpendicular", 14, 18),
    Sketcher.Constraint("Horizontal", 14, 2, 17, 2),
    Sketcher.Constraint("Vertical", 33, 3, 26, 1),
    Sketcher.Constraint("Diameter", 20, 8.0),
    Sketcher.Constraint("Diameter", 21, 12.0),
    Sketcher.Constraint("Radius", 0, 10.0),
    Sketcher.Constraint("Radius", 6, 15.0),
    Sketcher.Constraint("DistanceX", 3, 1, 3, 2, 37.0),
    Sketcher.Constraint("DistanceY", 1, 2, 1, 1, 160.0),
    Sketcher.Constraint("DistanceY", 5, 2, 5, 1, 12.0),
    Sketcher.Constraint("Radius", 25, 91.25),
    Sketcher.Constraint("DistanceX", 0, 3, -1, 1, 70.0),
    Sketcher.Constraint("DistanceX", 20, 3, -1, 1, 60.0),
    Sketcher.Constraint("DistanceY", 20, 3, 23, 3, 135.0),
    Sketcher.Constraint("DistanceY", 25, 3, 29, 3, 47.5),
])
pad5 = body2.newObject("PartDesign::Pad", "Pad004")
pad5.Profile = sketch10
pad5.Length = 3

doc.recompute()
